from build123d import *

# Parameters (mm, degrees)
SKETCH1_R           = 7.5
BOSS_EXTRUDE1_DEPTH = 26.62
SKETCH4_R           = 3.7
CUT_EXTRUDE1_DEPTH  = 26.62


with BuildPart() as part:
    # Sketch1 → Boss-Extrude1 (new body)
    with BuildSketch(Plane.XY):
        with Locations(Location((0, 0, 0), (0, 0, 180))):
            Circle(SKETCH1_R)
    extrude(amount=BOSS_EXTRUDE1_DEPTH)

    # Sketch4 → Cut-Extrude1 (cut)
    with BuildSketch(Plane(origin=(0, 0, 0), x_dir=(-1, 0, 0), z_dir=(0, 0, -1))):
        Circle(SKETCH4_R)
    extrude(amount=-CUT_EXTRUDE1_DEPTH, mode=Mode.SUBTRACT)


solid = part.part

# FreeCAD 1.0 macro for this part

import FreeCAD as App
import Part
import Sketcher
from FreeCAD import Vector

doc = App.newDocument("Part")
body = doc.addObject("PartDesign::Body", "Body")

# Sketch on XY plane
sketch1 = body.newObject("Sketcher::SketchObject", "Sketch")
sketch1.AttachmentSupport = (doc.getObject("XY_Plane"), [""])
sketch1.MapMode = "FlatFace"
sketch1.addGeometry(Part.Circle(Vector(0, 0, 0), Vector(0, 0, 1), 8), False)
sketch1.addConstraint([
    Sketcher.Constraint("Coincident", 0, 3, -1, 1),
    Sketcher.Constraint("Diameter", 0, 15.0),
])
pad1 = body.newObject("PartDesign::Pad", "Pad")
pad1.Profile = sketch1
pad1.Length = 26.62

# Sketch on XY plane
sketch2 = body.newObject("Sketcher::SketchObject", "Sketch001")
sketch2.AttachmentSupport = (doc.getObject("XY_Plane"), [""])
sketch2.MapMode = "FlatFace"
sketch2.addGeometry(Part.Circle(Vector(0, 0, 0), Vector(0, 0, 1), 3.7), False)
sketch2.addConstraint([
    Sketcher.Constraint("Coincident", 0, 3, -1, 1),
    Sketcher.Constraint("Diameter", 0, 7.4),
])
pocket1 = body.newObject("PartDesign::Pocket", "Pocket")
pocket1.Profile = sketch2
pocket1.Length = 26.62
pocket1.Reversed = True

doc.recompute()
